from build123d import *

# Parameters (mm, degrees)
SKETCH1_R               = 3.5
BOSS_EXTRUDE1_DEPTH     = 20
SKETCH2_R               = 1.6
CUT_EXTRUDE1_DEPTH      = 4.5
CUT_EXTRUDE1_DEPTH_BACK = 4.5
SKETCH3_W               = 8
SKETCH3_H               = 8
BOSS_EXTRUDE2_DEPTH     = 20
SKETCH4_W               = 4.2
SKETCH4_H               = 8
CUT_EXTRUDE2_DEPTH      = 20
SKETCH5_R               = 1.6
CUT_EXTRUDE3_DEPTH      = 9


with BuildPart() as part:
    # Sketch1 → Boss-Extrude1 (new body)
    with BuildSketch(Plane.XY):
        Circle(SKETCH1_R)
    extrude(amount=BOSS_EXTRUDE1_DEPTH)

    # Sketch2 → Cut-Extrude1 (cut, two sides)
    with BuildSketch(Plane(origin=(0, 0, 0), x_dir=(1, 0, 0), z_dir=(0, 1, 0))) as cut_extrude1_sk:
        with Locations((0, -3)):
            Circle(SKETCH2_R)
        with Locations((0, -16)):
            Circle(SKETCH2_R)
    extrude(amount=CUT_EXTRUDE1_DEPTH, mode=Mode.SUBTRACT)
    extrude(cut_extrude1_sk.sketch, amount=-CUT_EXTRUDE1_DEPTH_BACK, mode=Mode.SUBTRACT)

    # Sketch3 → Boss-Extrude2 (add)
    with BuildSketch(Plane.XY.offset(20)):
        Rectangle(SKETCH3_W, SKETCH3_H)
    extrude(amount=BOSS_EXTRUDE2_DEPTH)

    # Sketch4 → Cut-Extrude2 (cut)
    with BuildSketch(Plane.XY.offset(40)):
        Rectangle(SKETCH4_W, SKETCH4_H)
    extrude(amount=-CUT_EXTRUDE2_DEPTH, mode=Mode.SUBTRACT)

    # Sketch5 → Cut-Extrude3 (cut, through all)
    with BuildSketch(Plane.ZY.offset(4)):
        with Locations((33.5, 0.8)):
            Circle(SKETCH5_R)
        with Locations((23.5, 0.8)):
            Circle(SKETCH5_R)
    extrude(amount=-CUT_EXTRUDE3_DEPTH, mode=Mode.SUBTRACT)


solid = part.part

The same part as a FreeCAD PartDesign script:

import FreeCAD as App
import Part
import Sketcher

V = App.Vector

doc = App.newDocument("Part")
params = doc.addObject("Spreadsheet::Sheet", "Params")
for row, (alias, value) in enumerate([
    ("sketch1_diameter", "7 mm"),
    ("pad1_length", "20 mm"),
    ("sketch2_diameter", "3.2 mm"),
    ("sketch3_width", "8 mm"),
    ("pad2_length", "20 mm"),
    ("sketch4_height", "8 mm"),
    ("sketch4_width", "4.2 mm"),
    ("pocket2_length", "20 mm"),
    ("sketch5_diameter", "3.2 mm"),
], start=1):
    params.set(f"A{row}", alias)
    params.set(f"B{row}", "=" + value)
    params.setAlias(f"B{row}", alias)

body = doc.addObject("PartDesign::Body", "Body")

# Sketch on XY plane
sketch1 = doc.addObject("Sketcher::SketchObject", "Sketch")
body.addObject(sketch1)
sketch1.AttachmentSupport = (doc.XY_Plane, [""])
sketch1.MapMode = "FlatFace"
sketch1.addGeometry(Part.Circle(V(0, 0, 0), V(0, 0, 1), 3.5), False)
sketch1.addConstraint(Sketcher.Constraint("Coincident", 0, 3, -1, 1))
sketch1.addConstraint(Sketcher.Constraint("Diameter", 0, 7.0))
sketch1.setExpression("Constraints[1]", "Params.sketch1_diameter")
pad1 = doc.addObject("PartDesign::Pad", "Pad")
body.addObject(pad1)
pad1.Profile = sketch1
pad1.setExpression("Length", "Params.pad1_length")

# Sketch on XZ plane
sketch2 = doc.addObject("Sketcher::SketchObject", "Sketch001")
body.addObject(sketch2)
sketch2.AttachmentSupport = (doc.XZ_Plane, [""])
sketch2.MapMode = "FlatFace"
sketch2.addGeometry(Part.Circle(V(0, 3, 0), V(0, 0, 1), 1.6), False)
sketch2.addGeometry(Part.Circle(V(0, 16, 0), V(0, 0, 1), 1.6), False)
sketch2.addConstraint(Sketcher.Constraint("Equal", 0, 1))
sketch2.addConstraint(Sketcher.Constraint("PointOnObject", 0, 3, -2))
sketch2.addConstraint(Sketcher.Constraint("PointOnObject", 1, 3, -2))
sketch2.addConstraint(Sketcher.Constraint("Diameter", 0, 3.2))
sketch2.addConstraint(Sketcher.Constraint("DistanceY", -1, 1, 0, 3, 3.0))
sketch2.addConstraint(Sketcher.Constraint("DistanceY", -1, 1, 1, 3, 16.0))
sketch2.setExpression("Constraints[3]", "Params.sketch2_diameter")
pocket1 = doc.addObject("PartDesign::Pocket", "Pocket")
body.addObject(pocket1)
pocket1.Profile = sketch2
pocket1.Type = "ThroughAll"
pocket1.Midplane = True

# Sketch on XY plane
sketch3 = doc.addObject("Sketcher::SketchObject", "Sketch002")
body.addObject(sketch3)
sketch3.AttachmentSupport = (doc.XY_Plane, [""])
sketch3.MapMode = "FlatFace"
sketch3.AttachmentOffset = App.Placement(V(0, 0, 20), App.Rotation())
sketch3.addGeometry(Part.LineSegment(V(-4, 4, 0), V(-4, -4, 0)), False)
sketch3.addGeometry(Part.LineSegment(V(-4, -4, 0), V(4, -4, 0)), False)
sketch3.addGeometry(Part.LineSegment(V(4, -4, 0), V(4, 4, 0)), False)
sketch3.addGeometry(Part.LineSegment(V(4, 4, 0), V(-4, 4, 0)), False)
sketch3.addConstraint(Sketcher.Constraint("Coincident", 0, 2, 1, 1))
sketch3.addConstraint(Sketcher.Constraint("Coincident", 1, 2, 2, 1))
sketch3.addConstraint(Sketcher.Constraint("Coincident", 2, 2, 3, 1))
sketch3.addConstraint(Sketcher.Constraint("Coincident", 3, 2, 0, 1))
sketch3.addConstraint(Sketcher.Constraint("Vertical", 0))
sketch3.addConstraint(Sketcher.Constraint("Horizontal", 1))
sketch3.addConstraint(Sketcher.Constraint("Vertical", 2))
sketch3.addConstraint(Sketcher.Constraint("Horizontal", 3))
sketch3.addConstraint(Sketcher.Constraint("Symmetric", 0, 2, 2, 2, -1, 1))
sketch3.addConstraint(Sketcher.Constraint("Equal", 3, 0))
sketch3.addConstraint(Sketcher.Constraint("DistanceX", 1, 1, 1, 2, 8.0))
sketch3.setExpression("Constraints[10]", "Params.sketch3_width")
pad2 = doc.addObject("PartDesign::Pad", "Pad001")
body.addObject(pad2)
pad2.Profile = sketch3
pad2.setExpression("Length", "Params.pad2_length")

# Sketch on XY plane
sketch4 = doc.addObject("Sketcher::SketchObject", "Sketch003")
body.addObject(sketch4)
sketch4.AttachmentSupport = (doc.XY_Plane, [""])
sketch4.MapMode = "FlatFace"
sketch4.AttachmentOffset = App.Placement(V(0, 0, 40), App.Rotation())
sketch4.addGeometry(Part.LineSegment(V(-2.1, 4, 0), V(-2.1, -4, 0)), False)
sketch4.addGeometry(Part.LineSegment(V(-2.1, -4, 0), V(2.1, -4, 0)), False)
sketch4.addGeometry(Part.LineSegment(V(2.1, -4, 0), V(2.1, 4, 0)), False)
sketch4.addGeometry(Part.LineSegment(V(2.1, 4, 0), V(-2.1, 4, 0)), False)
sketch4.addConstraint(Sketcher.Constraint("Coincident", 0, 2, 1, 1))
sketch4.addConstraint(Sketcher.Constraint("Coincident", 1, 2, 2, 1))
sketch4.addConstraint(Sketcher.Constraint("Coincident", 2, 2, 3, 1))
sketch4.addConstraint(Sketcher.Constraint("Coincident", 3, 2, 0, 1))
sketch4.addConstraint(Sketcher.Constraint("Vertical", 0))
sketch4.addConstraint(Sketcher.Constraint("Horizontal", 1))
sketch4.addConstraint(Sketcher.Constraint("Vertical", 2))
sketch4.addConstraint(Sketcher.Constraint("Horizontal", 3))
sketch4.addConstraint(Sketcher.Constraint("Symmetric", 0, 2, 2, 2, -1, 1))
sketch4.addConstraint(Sketcher.Constraint("DistanceY", 0, 2, 0, 1, 8.0))
sketch4.addConstraint(Sketcher.Constraint("DistanceX", 1, 1, 1, 2, 4.2))
sketch4.setExpression("Constraints[9]", "Params.sketch4_height")
sketch4.setExpression("Constraints[10]", "Params.sketch4_width")
pocket2 = doc.addObject("PartDesign::Pocket", "Pocket001")
body.addObject(pocket2)
pocket2.Profile = sketch4
pocket2.setExpression("Length", "Params.pocket2_length")

# Sketch on YZ plane
sketch5 = doc.addObject("Sketcher::SketchObject", "Sketch004")
body.addObject(sketch5)
sketch5.AttachmentSupport = (doc.YZ_Plane, [""])
sketch5.MapMode = "FlatFace"
sketch5.AttachmentOffset = App.Placement(V(0, 0, -4), App.Rotation())
sketch5.addGeometry(Part.Circle(V(0.8, 33.5, 0), V(0, 0, 1), 1.6), False)
sketch5.addGeometry(Part.Circle(V(0.8, 23.5, 0), V(0, 0, 1), 1.6), False)
sketch5.addConstraint(Sketcher.Constraint("Equal", 0, 1))
sketch5.addConstraint(Sketcher.Constraint("Vertical", 0, 3, 1, 3))
sketch5.addConstraint(Sketcher.Constraint("Diameter", 0, 3.2))
sketch5.addConstraint(Sketcher.Constraint("DistanceY", 1, 3, 0, 3, 10.0))
sketch5.addConstraint(Sketcher.Constraint("DistanceX", -1, 1, 0, 3, 0.8))
sketch5.addConstraint(Sketcher.Constraint("DistanceY", -1, 1, 0, 3, 33.5))
sketch5.setExpression("Constraints[2]", "Params.sketch5_diameter")
pocket3 = doc.addObject("PartDesign::Pocket", "Pocket002")
body.addObject(pocket3)
pocket3.Profile = sketch5
pocket3.Type = "ThroughAll"
pocket3.Reversed = True

doc.recompute()
